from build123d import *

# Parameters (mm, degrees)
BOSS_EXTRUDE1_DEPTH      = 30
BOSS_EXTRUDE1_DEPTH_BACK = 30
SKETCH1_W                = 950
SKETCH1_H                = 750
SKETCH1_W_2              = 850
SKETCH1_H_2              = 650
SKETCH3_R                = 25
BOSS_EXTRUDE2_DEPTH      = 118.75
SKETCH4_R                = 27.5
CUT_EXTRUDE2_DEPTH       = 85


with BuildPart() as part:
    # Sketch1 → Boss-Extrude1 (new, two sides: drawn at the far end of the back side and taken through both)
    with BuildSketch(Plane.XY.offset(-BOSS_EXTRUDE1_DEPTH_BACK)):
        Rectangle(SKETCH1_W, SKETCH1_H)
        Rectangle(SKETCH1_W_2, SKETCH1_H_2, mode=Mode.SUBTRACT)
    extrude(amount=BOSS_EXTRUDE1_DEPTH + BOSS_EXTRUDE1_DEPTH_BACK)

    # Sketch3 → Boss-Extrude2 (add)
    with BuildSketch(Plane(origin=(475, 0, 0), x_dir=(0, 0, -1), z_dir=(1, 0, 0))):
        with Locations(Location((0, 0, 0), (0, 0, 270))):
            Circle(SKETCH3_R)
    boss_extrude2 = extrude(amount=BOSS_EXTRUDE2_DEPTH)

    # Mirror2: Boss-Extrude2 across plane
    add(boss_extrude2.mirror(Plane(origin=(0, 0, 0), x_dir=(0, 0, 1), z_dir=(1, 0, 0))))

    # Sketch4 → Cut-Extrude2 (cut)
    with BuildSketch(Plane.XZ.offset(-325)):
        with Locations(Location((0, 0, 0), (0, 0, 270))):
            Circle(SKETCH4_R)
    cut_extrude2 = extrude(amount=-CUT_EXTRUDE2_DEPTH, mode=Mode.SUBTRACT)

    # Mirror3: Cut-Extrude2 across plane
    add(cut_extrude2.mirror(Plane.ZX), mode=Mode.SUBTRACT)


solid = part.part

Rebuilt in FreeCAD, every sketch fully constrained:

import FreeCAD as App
import Part
import Sketcher

V = App.Vector
Q = App.Units.Quantity


def add_polygon(sketch, points):
    """Adds a closed chain of lines whose ends are joined by coincident constraints."""
    first, n = sketch.GeometryCount, len(points)
    for a, b in zip(points, points[1:] + points[:1]):
        sketch.addGeometry(Part.LineSegment(App.Vector(*a, 0), App.Vector(*b, 0)), False)
    for i in range(n):
        sketch.addConstraint(Sketcher.Constraint("Coincident", first + i, 2, first + (i + 1) % n, 1))

doc = App.newDocument("Part")
body = doc.addObject("PartDesign::Body", "Body")

# Sketch on XY plane
sketch1 = body.newObject("Sketcher::SketchObject", "Sketch")
sketch1.AttachmentSupport = (doc.getObject("XY_Plane"), [""])
sketch1.MapMode = "FlatFace"
add_polygon(sketch1, [(-475, 375), (-475, -375), (475, -375), (475, 375)])  # lines 0-3
add_polygon(sketch1, [(425, -325), (-425, -325), (-425, 325), (425, 325)])  # lines 4-7
sketch1.addConstraint([
    Sketcher.Constraint("Vertical", 0),
    Sketcher.Constraint("Horizontal", 1),
    Sketcher.Constraint("Vertical", 2),
    Sketcher.Constraint("Horizontal", 3),
    Sketcher.Constraint("Horizontal", 4),
    Sketcher.Constraint("Vertical", 5),
    Sketcher.Constraint("Horizontal", 6),
    Sketcher.Constraint("Vertical", 7),
    Sketcher.Constraint("Symmetric", 0, 2, 2, 2, -1, 1),
    Sketcher.Constraint("Symmetric", 4, 2, 6, 2, -1, 1),
    Sketcher.Constraint("DistanceX", 1, 1, 1, 2, Q("950 mm")),
    Sketcher.Constraint("DistanceX", 4, 2, 4, 1, Q("850 mm")),
    Sketcher.Constraint("DistanceY", 0, 2, 0, 1, Q("750 mm")),
    Sketcher.Constraint("DistanceY", 5, 1, 5, 2, Q("650 mm")),
])
pad1 = body.newObject("PartDesign::Pad", "Pad")
pad1.Profile = sketch1
pad1.Type = "TwoLengths"
pad1.Length = 30
pad1.Length2 = 30

# Sketch on YZ plane
sketch2 = body.newObject("Sketcher::SketchObject", "Sketch001")
sketch2.AttachmentSupport = (doc.getObject("YZ_Plane"), [""])
sketch2.MapMode = "FlatFace"
sketch2.AttachmentOffset = App.Placement(V(0, 0, 475), App.Rotation())
sketch2.addGeometry(Part.Circle(V(0, 0, 0), V(0, 0, 1), 25), False)
sketch2.addConstraint([
    Sketcher.Constraint("Coincident", 0, 3, -1, 1),
    Sketcher.Constraint("Diameter", 0, Q("50 mm")),
])
pad2 = body.newObject("PartDesign::Pad", "Pad001")
pad2.Profile = sketch2
pad2.Length = 118.75
doc.recompute()

mirrored = body.newObject("PartDesign::Mirrored", "Mirrored")
mirrored.Originals = [pad2]
mirrored.MirrorPlane = (doc.getObject("YZ_Plane"), [""])
body.Tip = mirrored

# Sketch on XZ plane
sketch3 = body.newObject("Sketcher::SketchObject", "Sketch002")
sketch3.AttachmentSupport = (doc.getObject("XZ_Plane"), [""])
sketch3.MapMode = "FlatFace"
sketch3.AttachmentOffset = App.Placement(V(0, 0, -325), App.Rotation())
sketch3.addGeometry(Part.Circle(V(0, 0, 0), V(0, 0, 1), 28), False)
sketch3.addConstraint([
    Sketcher.Constraint("Coincident", 0, 3, -1, 1),
    Sketcher.Constraint("Diameter", 0, Q("55 mm")),
])
pocket1 = body.newObject("PartDesign::Pocket", "Pocket")
pocket1.Profile = sketch3
pocket1.Length = 85
doc.recompute()

mirrored2 = body.newObject("PartDesign::Mirrored", "Mirrored001")
mirrored2.Originals = [pocket1]
mirrored2.MirrorPlane = (doc.getObject("XZ_Plane"), [""])
body.Tip = mirrored2

doc.recompute()
